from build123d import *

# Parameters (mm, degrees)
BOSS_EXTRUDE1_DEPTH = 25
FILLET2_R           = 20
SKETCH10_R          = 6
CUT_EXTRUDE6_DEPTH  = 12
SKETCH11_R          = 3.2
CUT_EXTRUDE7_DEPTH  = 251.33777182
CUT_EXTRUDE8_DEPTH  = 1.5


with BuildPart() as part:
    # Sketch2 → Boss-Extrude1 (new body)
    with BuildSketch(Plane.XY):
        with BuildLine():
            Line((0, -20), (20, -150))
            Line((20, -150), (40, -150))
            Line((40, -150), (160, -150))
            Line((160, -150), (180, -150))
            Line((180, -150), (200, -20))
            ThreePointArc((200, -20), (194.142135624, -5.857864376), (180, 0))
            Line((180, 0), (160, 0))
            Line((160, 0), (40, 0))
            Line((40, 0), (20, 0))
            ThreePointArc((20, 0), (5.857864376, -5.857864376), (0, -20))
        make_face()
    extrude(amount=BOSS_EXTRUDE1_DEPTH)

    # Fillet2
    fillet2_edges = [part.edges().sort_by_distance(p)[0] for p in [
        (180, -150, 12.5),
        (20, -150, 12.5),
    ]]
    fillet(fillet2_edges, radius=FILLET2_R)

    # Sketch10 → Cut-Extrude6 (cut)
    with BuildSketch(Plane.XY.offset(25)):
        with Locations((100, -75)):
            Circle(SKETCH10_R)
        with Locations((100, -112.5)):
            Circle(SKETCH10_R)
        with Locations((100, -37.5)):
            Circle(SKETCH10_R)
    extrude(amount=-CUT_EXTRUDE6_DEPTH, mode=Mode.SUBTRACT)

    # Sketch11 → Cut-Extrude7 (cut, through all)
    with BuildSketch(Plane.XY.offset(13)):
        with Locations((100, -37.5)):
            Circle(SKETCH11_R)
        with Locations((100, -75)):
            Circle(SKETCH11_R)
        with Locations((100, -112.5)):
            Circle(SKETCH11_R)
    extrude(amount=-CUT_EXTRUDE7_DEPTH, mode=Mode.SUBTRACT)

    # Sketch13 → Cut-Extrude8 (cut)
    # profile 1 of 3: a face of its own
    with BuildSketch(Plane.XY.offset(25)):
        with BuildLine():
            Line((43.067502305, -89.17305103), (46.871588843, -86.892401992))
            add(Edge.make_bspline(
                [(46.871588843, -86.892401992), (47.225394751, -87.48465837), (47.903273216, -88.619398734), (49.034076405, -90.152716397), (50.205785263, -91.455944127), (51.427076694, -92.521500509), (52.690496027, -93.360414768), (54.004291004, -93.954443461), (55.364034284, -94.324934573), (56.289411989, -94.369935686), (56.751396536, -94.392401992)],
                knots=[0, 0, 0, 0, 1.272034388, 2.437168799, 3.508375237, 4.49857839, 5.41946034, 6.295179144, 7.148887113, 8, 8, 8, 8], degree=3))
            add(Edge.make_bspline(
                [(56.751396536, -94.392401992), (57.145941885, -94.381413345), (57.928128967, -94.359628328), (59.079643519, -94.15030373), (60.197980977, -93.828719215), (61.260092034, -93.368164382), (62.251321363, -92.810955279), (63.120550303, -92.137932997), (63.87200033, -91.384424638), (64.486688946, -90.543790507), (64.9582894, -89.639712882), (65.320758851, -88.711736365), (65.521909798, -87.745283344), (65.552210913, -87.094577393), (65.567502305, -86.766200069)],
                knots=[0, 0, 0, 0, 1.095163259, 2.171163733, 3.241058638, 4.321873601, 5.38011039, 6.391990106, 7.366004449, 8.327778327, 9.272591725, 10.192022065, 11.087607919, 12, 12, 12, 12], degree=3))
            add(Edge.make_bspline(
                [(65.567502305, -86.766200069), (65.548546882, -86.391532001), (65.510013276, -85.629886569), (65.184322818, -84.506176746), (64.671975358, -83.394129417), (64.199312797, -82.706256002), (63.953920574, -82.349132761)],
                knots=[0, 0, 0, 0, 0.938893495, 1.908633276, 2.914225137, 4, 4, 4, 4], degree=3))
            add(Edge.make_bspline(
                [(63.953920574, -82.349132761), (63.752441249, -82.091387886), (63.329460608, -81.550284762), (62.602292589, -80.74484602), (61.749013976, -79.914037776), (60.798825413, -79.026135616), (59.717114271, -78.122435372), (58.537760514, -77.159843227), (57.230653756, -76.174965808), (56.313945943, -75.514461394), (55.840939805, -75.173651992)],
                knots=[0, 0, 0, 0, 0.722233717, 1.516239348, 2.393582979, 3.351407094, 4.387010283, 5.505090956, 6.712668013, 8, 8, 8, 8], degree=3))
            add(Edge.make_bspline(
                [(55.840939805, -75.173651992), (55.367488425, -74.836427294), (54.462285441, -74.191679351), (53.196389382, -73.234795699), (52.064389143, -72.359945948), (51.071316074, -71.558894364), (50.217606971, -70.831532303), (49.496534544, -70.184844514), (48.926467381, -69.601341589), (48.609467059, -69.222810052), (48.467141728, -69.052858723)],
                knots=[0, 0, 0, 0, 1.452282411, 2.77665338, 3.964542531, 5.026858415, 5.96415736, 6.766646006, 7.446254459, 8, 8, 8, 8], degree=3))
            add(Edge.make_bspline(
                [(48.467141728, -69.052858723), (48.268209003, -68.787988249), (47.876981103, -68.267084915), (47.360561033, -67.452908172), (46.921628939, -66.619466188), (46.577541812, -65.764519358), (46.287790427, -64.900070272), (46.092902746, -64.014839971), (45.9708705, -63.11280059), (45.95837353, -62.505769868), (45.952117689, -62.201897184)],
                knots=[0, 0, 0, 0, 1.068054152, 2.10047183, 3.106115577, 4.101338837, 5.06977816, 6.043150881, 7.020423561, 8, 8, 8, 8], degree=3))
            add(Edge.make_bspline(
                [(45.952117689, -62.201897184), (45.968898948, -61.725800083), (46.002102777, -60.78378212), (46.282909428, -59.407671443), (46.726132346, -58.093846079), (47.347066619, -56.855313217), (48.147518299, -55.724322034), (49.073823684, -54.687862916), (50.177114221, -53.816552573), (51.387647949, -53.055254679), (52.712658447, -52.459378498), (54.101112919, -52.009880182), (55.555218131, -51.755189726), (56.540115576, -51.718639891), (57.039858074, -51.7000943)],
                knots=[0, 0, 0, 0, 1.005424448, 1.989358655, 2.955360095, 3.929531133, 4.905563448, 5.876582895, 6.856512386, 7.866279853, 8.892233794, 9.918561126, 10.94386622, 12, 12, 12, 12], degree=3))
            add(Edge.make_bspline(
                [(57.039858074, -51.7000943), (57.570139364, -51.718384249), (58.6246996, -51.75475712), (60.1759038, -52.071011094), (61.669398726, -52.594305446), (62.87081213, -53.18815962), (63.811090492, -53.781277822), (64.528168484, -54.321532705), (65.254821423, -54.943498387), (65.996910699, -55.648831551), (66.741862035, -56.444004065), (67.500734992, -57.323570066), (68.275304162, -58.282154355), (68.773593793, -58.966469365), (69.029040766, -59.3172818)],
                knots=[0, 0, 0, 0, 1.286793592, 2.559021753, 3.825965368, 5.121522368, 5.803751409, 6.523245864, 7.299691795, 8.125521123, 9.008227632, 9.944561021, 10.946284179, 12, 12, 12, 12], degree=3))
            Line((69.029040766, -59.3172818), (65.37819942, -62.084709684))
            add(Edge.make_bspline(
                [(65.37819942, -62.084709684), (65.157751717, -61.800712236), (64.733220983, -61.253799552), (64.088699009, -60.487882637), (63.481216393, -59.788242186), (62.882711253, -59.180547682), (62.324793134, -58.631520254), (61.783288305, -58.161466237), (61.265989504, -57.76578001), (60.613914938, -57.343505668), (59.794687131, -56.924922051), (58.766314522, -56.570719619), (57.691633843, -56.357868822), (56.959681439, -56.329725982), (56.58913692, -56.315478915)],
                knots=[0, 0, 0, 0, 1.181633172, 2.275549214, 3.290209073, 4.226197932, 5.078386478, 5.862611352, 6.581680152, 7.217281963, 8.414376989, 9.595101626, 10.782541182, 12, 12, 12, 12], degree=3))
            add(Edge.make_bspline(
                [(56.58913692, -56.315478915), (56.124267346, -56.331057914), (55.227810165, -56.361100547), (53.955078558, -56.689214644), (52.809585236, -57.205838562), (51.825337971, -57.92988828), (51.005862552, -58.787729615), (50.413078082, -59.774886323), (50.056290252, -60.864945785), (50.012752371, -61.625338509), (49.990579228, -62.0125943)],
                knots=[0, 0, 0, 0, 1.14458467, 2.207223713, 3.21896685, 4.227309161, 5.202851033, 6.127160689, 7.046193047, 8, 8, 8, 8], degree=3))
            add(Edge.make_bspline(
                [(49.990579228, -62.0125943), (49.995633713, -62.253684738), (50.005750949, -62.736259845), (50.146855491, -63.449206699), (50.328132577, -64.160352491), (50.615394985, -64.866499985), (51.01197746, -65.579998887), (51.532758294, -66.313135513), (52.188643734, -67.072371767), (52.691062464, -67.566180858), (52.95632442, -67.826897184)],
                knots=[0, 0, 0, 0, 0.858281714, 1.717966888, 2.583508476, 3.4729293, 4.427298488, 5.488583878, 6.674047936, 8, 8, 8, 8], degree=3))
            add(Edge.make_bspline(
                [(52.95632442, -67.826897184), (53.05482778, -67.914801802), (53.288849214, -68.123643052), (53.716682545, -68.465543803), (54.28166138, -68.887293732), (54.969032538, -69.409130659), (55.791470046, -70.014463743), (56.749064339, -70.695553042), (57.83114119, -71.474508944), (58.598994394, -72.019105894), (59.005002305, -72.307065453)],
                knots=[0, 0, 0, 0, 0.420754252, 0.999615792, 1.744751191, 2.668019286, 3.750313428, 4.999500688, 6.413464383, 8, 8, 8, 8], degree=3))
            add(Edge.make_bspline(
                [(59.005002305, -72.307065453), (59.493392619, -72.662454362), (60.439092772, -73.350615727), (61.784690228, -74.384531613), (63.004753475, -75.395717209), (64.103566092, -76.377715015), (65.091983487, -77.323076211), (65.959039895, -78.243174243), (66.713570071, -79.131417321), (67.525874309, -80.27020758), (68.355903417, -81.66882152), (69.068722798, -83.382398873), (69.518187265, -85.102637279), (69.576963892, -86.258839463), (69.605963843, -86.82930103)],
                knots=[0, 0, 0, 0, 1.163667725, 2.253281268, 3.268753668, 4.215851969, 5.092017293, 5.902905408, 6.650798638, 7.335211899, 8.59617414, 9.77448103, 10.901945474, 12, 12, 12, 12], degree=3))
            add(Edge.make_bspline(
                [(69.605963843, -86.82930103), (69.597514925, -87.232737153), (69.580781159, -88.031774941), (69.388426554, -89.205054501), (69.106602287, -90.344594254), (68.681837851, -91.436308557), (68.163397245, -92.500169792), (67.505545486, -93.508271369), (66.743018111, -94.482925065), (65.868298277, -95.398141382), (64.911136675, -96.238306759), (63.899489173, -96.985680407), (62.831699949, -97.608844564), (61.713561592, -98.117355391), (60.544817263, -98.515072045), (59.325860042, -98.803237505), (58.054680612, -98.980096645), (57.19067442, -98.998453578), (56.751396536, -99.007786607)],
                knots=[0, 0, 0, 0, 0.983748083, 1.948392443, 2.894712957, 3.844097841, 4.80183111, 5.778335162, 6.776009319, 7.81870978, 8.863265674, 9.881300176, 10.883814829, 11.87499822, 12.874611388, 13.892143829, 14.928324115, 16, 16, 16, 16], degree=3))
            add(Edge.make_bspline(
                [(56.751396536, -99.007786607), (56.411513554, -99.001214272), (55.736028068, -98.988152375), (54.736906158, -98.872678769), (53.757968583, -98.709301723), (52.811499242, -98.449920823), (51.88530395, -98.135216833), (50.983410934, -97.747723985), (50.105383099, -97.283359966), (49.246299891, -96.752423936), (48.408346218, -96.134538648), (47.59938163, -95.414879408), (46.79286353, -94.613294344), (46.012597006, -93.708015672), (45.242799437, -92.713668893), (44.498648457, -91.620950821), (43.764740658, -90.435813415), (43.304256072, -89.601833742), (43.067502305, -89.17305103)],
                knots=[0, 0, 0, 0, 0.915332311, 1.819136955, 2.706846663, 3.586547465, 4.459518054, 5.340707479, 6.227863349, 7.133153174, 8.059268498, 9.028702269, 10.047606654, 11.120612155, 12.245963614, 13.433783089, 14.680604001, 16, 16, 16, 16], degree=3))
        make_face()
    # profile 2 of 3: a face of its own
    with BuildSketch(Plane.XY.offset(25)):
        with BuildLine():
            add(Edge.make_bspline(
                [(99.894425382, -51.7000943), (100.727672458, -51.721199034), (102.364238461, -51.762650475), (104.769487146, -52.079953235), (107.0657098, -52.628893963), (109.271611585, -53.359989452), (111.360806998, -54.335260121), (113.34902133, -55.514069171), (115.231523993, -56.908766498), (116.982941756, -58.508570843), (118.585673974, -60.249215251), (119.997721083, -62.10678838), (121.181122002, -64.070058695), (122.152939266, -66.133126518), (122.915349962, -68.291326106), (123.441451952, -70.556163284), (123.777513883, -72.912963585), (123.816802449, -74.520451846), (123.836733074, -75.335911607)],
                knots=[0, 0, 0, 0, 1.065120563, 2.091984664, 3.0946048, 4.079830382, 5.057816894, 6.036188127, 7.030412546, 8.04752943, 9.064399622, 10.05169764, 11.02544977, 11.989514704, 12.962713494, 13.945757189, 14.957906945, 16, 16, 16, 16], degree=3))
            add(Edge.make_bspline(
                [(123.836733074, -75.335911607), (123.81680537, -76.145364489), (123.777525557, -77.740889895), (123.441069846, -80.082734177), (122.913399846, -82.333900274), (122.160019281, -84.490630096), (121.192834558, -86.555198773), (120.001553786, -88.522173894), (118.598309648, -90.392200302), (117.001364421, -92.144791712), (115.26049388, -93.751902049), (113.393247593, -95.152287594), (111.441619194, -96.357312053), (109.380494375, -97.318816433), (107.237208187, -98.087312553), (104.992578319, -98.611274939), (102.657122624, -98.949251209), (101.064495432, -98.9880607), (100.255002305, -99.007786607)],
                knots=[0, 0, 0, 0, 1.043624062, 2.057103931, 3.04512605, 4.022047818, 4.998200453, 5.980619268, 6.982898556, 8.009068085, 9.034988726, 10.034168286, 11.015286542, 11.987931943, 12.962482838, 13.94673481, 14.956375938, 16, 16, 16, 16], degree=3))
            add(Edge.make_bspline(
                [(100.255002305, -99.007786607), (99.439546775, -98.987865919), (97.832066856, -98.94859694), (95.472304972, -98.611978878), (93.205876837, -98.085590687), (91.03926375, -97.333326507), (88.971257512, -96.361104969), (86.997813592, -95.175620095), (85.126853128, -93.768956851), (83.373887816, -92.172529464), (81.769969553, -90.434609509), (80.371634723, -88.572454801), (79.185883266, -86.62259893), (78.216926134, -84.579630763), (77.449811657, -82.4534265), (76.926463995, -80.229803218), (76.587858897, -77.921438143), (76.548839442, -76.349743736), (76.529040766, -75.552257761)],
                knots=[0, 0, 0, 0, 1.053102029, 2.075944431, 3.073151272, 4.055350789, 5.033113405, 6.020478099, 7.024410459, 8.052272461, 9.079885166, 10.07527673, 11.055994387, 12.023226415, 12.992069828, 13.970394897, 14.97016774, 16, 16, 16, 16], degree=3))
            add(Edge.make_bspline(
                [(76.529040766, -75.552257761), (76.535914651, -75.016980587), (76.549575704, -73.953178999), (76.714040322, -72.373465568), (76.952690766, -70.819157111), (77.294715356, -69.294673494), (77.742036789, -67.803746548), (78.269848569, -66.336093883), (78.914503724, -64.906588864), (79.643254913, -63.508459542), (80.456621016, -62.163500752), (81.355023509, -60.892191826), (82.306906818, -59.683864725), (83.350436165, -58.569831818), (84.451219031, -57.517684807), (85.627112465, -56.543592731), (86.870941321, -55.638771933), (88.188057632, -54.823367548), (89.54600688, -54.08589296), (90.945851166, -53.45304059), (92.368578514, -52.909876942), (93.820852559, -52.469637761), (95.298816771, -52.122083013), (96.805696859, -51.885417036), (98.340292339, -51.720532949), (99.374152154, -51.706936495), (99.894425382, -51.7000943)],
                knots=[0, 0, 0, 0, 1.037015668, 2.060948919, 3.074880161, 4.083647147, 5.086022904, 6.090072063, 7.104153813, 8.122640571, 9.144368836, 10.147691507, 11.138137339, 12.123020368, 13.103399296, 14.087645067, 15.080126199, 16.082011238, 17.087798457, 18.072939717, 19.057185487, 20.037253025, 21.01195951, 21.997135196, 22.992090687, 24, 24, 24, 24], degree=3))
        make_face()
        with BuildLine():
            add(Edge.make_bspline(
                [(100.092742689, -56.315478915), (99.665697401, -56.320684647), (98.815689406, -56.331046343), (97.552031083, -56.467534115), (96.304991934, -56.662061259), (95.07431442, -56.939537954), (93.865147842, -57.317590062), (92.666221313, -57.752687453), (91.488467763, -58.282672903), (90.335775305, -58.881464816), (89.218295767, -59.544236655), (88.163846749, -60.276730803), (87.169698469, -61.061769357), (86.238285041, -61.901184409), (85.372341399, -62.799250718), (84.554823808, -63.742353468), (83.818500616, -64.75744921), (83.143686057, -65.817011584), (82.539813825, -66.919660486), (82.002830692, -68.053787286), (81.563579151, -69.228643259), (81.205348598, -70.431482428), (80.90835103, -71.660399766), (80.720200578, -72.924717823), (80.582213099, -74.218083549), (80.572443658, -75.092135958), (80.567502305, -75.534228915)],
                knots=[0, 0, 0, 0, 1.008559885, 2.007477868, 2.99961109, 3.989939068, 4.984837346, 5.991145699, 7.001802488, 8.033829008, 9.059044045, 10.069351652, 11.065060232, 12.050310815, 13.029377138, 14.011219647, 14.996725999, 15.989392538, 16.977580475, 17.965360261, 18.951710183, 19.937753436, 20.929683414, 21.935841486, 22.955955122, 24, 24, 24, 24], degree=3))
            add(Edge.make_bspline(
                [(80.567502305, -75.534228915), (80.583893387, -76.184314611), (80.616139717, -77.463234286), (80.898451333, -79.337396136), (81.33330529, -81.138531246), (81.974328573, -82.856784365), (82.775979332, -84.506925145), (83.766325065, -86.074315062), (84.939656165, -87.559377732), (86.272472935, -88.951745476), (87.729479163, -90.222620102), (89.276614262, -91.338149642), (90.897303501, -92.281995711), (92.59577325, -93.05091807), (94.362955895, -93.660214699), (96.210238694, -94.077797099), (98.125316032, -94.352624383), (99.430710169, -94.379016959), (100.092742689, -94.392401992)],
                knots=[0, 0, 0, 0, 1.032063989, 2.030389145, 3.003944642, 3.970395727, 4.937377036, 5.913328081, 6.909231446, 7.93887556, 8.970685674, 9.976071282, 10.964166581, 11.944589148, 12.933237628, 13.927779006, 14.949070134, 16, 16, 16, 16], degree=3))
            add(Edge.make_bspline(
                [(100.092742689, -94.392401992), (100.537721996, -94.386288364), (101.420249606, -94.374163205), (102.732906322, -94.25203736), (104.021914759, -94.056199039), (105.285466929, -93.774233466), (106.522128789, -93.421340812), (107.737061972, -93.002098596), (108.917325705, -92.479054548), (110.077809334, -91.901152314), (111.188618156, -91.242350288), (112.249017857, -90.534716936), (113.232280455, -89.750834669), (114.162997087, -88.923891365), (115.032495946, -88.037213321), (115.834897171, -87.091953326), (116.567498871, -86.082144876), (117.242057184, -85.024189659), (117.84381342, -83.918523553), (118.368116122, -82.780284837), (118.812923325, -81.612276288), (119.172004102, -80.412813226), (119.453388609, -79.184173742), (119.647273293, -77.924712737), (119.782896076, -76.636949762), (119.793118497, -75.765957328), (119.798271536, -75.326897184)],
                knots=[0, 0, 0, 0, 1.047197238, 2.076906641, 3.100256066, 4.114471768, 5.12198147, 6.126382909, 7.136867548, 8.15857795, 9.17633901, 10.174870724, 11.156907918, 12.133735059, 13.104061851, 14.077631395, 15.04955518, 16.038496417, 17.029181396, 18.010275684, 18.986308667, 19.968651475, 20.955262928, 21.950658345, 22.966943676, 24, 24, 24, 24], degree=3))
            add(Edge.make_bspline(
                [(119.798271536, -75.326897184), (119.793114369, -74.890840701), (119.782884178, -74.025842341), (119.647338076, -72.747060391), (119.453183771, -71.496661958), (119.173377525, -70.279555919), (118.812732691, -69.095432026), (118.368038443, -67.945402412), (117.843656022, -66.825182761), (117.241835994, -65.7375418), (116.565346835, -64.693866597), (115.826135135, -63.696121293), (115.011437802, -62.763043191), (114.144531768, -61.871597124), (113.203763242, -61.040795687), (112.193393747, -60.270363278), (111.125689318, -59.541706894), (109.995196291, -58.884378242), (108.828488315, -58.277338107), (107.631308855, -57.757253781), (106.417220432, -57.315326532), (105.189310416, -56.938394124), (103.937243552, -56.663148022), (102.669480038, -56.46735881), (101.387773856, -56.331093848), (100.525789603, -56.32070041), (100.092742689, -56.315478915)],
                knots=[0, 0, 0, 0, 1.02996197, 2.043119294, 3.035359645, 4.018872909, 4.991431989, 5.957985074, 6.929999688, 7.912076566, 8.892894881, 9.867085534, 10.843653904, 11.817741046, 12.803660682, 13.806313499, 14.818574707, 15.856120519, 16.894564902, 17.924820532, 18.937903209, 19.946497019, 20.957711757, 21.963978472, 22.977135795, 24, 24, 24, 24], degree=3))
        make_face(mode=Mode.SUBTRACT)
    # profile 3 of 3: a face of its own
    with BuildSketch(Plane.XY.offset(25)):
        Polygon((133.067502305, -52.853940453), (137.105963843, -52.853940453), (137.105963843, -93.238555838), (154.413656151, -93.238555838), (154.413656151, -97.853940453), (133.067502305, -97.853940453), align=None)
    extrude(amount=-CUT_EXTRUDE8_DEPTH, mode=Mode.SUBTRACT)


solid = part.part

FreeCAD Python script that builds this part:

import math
import FreeCAD as App
import Part
import Sketcher


def edges_at(feature, points):
    """Names of the edges that pass closest to the given points."""
    edges = feature.Shape.Edges
    near = lambda p: min(range(len(edges)), key=lambda i: edges[i].distToShape(Part.Vertex(*p))[0])
    return sorted({f"Edge{near(p) + 1}" for p in points})


def add_polygon(sketch, points):
    """Adds a closed chain of lines whose ends are joined by coincident constraints."""
    first, n = sketch.GeometryCount, len(points)
    for a, b in zip(points, points[1:] + points[:1]):
        sketch.addGeometry(Part.LineSegment(App.Vector(*a, 0), App.Vector(*b, 0)), False)
    for i in range(n):
        sketch.addConstraint(Sketcher.Constraint("Coincident", first + i, 2, first + (i + 1) % n, 1))

doc = App.newDocument("Part")
body = doc.addObject("PartDesign::Body", "Body")

# Sketch on XY plane
sketch1 = body.newObject("Sketcher::SketchObject", "Sketch")
sketch1.AttachmentSupport = (doc.getObject("XY_Plane"), [""])
sketch1.MapMode = "FlatFace"
sketch1.addGeometry([
    Part.LineSegment(App.Vector(0, -20, 0), App.Vector(20, -150, 0)),  # 0
    Part.LineSegment(App.Vector(20, -150, 0), App.Vector(180, -150, 0)),  # 1
    Part.LineSegment(App.Vector(180, -150, 0), App.Vector(200, -20, 0)),  # 2
    Part.ArcOfCircle(Part.Circle(App.Vector(180, -20, 0), App.Vector(0, 0, 1), 20), math.radians(0), math.radians(90)),  # 3
    Part.LineSegment(App.Vector(180, 0, 0), App.Vector(20, 0, 0)),  # 4
    Part.ArcOfCircle(Part.Circle(App.Vector(20, -20, 0), App.Vector(0, 0, 1), 20), math.radians(90), math.radians(180)),  # 5
], False)
sketch1.addConstraint([
    Sketcher.Constraint("Coincident", 0, 2, 1, 1),
    Sketcher.Constraint("Coincident", 1, 2, 2, 1),
    Sketcher.Constraint("Coincident", 2, 2, 3, 1),
    Sketcher.Constraint("Tangent", 3, 2, 4, 1),
    Sketcher.Constraint("Tangent", 4, 2, 5, 1),
    Sketcher.Constraint("Coincident", 5, 2, 0, 1),
    Sketcher.Constraint("Horizontal", 1),
    Sketcher.Constraint("Horizontal", 4),
    Sketcher.Constraint("Equal", 3, 5),
    Sketcher.Constraint("PointOnObject", 3, 2, -1),
    Sketcher.Constraint("PointOnObject", 5, 2, -2),
    Sketcher.Constraint("Horizontal", 5, 3, 2, 2),
    Sketcher.Constraint("Horizontal", 2, 2, 5, 2),
    Sketcher.Constraint("Vertical", 5, 3, 0, 2),
    Sketcher.Constraint("Vertical", 3, 3, 1, 2),
    Sketcher.Constraint("Radius", 3, 20.0),
    Sketcher.Constraint("DistanceX", 1, 1, 1, 2, 160.0),
    Sketcher.Constraint("DistanceY", 0, 2, -1, 1, 150.0),
])
pad1 = body.newObject("PartDesign::Pad", "Pad")
pad1.Profile = sketch1
pad1.Length = 25
doc.recompute()

fillet = body.newObject("PartDesign::Fillet", "Fillet")
fillet.Base = (pad1, edges_at(pad1, [(180, -150, 12.5), (20, -150, 12.5)]))
fillet.Radius = 20

# Sketch on XY plane
sketch2 = body.newObject("Sketcher::SketchObject", "Sketch001")
sketch2.AttachmentSupport = (doc.getObject("XY_Plane"), [""])
sketch2.MapMode = "FlatFace"
sketch2.AttachmentOffset = App.Placement(App.Vector(0, 0, 25), App.Rotation())
sketch2.addGeometry([
    Part.Circle(App.Vector(100, -75, 0), App.Vector(0, 0, 1), 6),
    Part.Circle(App.Vector(100, -112.5, 0), App.Vector(0, 0, 1), 6),
    Part.Circle(App.Vector(100, -37.5, 0), App.Vector(0, 0, 1), 6),
], False)
sketch2.addConstraint([
    Sketcher.Constraint("Equal", 0, 1),
    Sketcher.Constraint("Equal", 1, 2),
    Sketcher.Constraint("Vertical", 0, 3, 1, 3),
    Sketcher.Constraint("Vertical", 1, 3, 2, 3),
    Sketcher.Constraint("Diameter", 0, 12.0),
    Sketcher.Constraint("DistanceX", -1, 1, 0, 3, 100.0),
    Sketcher.Constraint("DistanceY", 0, 3, -1, 1, 75.0),
    Sketcher.Constraint("DistanceY", 1, 3, 2, 3, 75.0),
    Sketcher.Constraint("DistanceY", 1, 3, -1, 1, 112.5),
])
pocket1 = body.newObject("PartDesign::Pocket", "Pocket")
pocket1.Profile = sketch2
pocket1.Length = 12

# Sketch on XY plane
sketch3 = body.newObject("Sketcher::SketchObject", "Sketch002")
sketch3.AttachmentSupport = (doc.getObject("XY_Plane"), [""])
sketch3.MapMode = "FlatFace"
sketch3.AttachmentOffset = App.Placement(App.Vector(0, 0, 13), App.Rotation())
sketch3.addGeometry([
    Part.Circle(App.Vector(100, -37.5, 0), App.Vector(0, 0, 1), 3.2),
    Part.Circle(App.Vector(100, -75, 0), App.Vector(0, 0, 1), 3.2),
    Part.Circle(App.Vector(100, -112.5, 0), App.Vector(0, 0, 1), 3.2),
], False)
sketch3.addConstraint([
    Sketcher.Constraint("Equal", 0, 1),
    Sketcher.Constraint("Equal", 1, 2),
    Sketcher.Constraint("Vertical", 0, 3, 1, 3),
    Sketcher.Constraint("Vertical", 1, 3, 2, 3),
    Sketcher.Constraint("Diameter", 0, 6.4),
    Sketcher.Constraint("DistanceX", -1, 1, 0, 3, 100.0),
    Sketcher.Constraint("DistanceY", 1, 3, -1, 1, 75.0),
    Sketcher.Constraint("DistanceY", 2, 3, 0, 3, 75.0),
    Sketcher.Constraint("DistanceY", 0, 3, -1, 1, 37.5),
])
pocket2 = body.newObject("PartDesign::Pocket", "Pocket001")
pocket2.Profile = sketch3
pocket2.Type = "ThroughAll"

# Sketch on XY plane
sketch4 = body.newObject("Sketcher::SketchObject", "Sketch003")
sketch4.AttachmentSupport = (doc.getObject("XY_Plane"), [""])
sketch4.MapMode = "FlatFace"
sketch4.AttachmentOffset = App.Placement(App.Vector(0, 0, 25), App.Rotation())
sketch4.addGeometry(Part.LineSegment(App.Vector(46.871589, -86.892402, 0), App.Vector(43.067502, -89.173051, 0)), False)  # 0
sketch4.addGeometry(Part.BSplineCurve([App.Vector(56.751397, -99.007787, 0), App.Vector(56.411514, -99.001214, 0), App.Vector(55.736028, -98.988152, 0), App.Vector(54.736906, -98.872679, 0), App.Vector(53.757969, -98.709302, 0), App.Vector(52.811499, -98.449921, 0), App.Vector(51.885304, -98.135217, 0), App.Vector(50.983411, -97.747724, 0), App.Vector(50.105383, -97.28336, 0), App.Vector(49.2463, -96.752424, 0), App.Vector(48.408346, -96.134539, 0), App.Vector(47.599382, -95.414879, 0), App.Vector(46.792864, -94.613294, 0), App.Vector(46.012597, -93.708016, 0), App.Vector(45.242799, -92.713669, 0), App.Vector(44.498648, -91.620951, 0), App.Vector(43.764741, -90.435813, 0), App.Vector(43.304256, -89.601834, 0), App.Vector(43.067502, -89.173051, 0)], [4, 1, 1, 1, 1, 1, 1, 1, 1, 1, 1, 1, 1, 1, 1, 1, 4], [0, 0.915332311, 1.819136955, 2.706846663, 3.586547465, 4.459518054, 5.340707479, 6.227863349, 7.133153174, 8.059268498, 9.028702269, 10.047606654, 11.120612155, 12.245963614, 13.433783089, 14.680604001, 16], False, 3, [1, 1, 1, 1, 1, 1, 1, 1, 1, 1, 1, 1, 1, 1, 1, 1, 1, 1, 1], False), False)  # 1
sketch4.addGeometry(Part.BSplineCurve([App.Vector(69.605964, -86.829301, 0), App.Vector(69.597515, -87.232737, 0), App.Vector(69.580781, -88.031775, 0), App.Vector(69.388427, -89.205055, 0), App.Vector(69.106602, -90.344594, 0), App.Vector(68.681838, -91.436309, 0), App.Vector(68.163397, -92.50017, 0), App.Vector(67.505545, -93.508271, 0), App.Vector(66.743018, -94.482925, 0), App.Vector(65.868298, -95.398141, 0), App.Vector(64.911137, -96.238307, 0), App.Vector(63.899489, -96.98568, 0), App.Vector(62.8317, -97.608845, 0), App.Vector(61.713562, -98.117355, 0), App.Vector(60.544817, -98.515072, 0), App.Vector(59.32586, -98.803238, 0), App.Vector(58.054681, -98.980097, 0), App.Vector(57.190674, -98.998454, 0), App.Vector(56.751397, -99.007787, 0)], [4, 1, 1, 1, 1, 1, 1, 1, 1, 1, 1, 1, 1, 1, 1, 1, 4], [0, 0.983748083, 1.948392443, 2.894712957, 3.844097841, 4.80183111, 5.778335162, 6.776009319, 7.81870978, 8.863265674, 9.881300176, 10.883814829, 11.87499822, 12.874611388, 13.892143829, 14.928324115, 16], False, 3, [1, 1, 1, 1, 1, 1, 1, 1, 1, 1, 1, 1, 1, 1, 1, 1, 1, 1, 1], False), False)  # 2
sketch4.addGeometry(Part.BSplineCurve([App.Vector(59.005002, -72.307065, 0), App.Vector(59.493393, -72.662454, 0), App.Vector(60.439093, -73.350616, 0), App.Vector(61.78469, -74.384532, 0), App.Vector(63.004753, -75.395717, 0), App.Vector(64.103566, -76.377715, 0), App.Vector(65.091983, -77.323076, 0), App.Vector(65.95904, -78.243174, 0), App.Vector(66.71357, -79.131417, 0), App.Vector(67.525874, -80.270208, 0), App.Vector(68.355903, -81.668822, 0), App.Vector(69.068723, -83.382399, 0), App.Vector(69.518187, -85.102637, 0), App.Vector(69.576964, -86.258839, 0), App.Vector(69.605964, -86.829301, 0)], [4, 1, 1, 1, 1, 1, 1, 1, 1, 1, 1, 1, 4], [0, 1.163667725, 2.253281268, 3.268753668, 4.215851969, 5.092017293, 5.902905408, 6.650798638, 7.335211899, 8.59617414, 9.77448103, 10.901945474, 12], False, 3, [1, 1, 1, 1, 1, 1, 1, 1, 1, 1, 1, 1, 1, 1, 1], False), False)  # 3
sketch4.addGeometry(Part.BSplineCurve([App.Vector(52.956324, -67.826897, 0), App.Vector(53.054828, -67.914802, 0), App.Vector(53.288849, -68.123643, 0), App.Vector(53.716683, -68.465544, 0), App.Vector(54.281661, -68.887294, 0), App.Vector(54.969033, -69.409131, 0), App.Vector(55.79147, -70.014464, 0), App.Vector(56.749064, -70.695553, 0), App.Vector(57.831141, -71.474509, 0), App.Vector(58.598994, -72.019106, 0), App.Vector(59.005002, -72.307065, 0)], [4, 1, 1, 1, 1, 1, 1, 1, 4], [0, 0.420754252, 0.999615792, 1.744751191, 2.668019286, 3.750313428, 4.999500688, 6.413464383, 8], False, 3, [1, 1, 1, 1, 1, 1, 1, 1, 1, 1, 1], False), False)  # 4
sketch4.addGeometry(Part.BSplineCurve([App.Vector(49.990579, -62.012594, 0), App.Vector(49.995634, -62.253685, 0), App.Vector(50.005751, -62.73626, 0), App.Vector(50.146855, -63.449207, 0), App.Vector(50.328133, -64.160352, 0), App.Vector(50.615395, -64.8665, 0), App.Vector(51.011977, -65.579999, 0), App.Vector(51.532758, -66.313136, 0), App.Vector(52.188644, -67.072372, 0), App.Vector(52.691062, -67.566181, 0), App.Vector(52.956324, -67.826897, 0)], [4, 1, 1, 1, 1, 1, 1, 1, 4], [0, 0.858281714, 1.717966888, 2.583508476, 3.4729293, 4.427298488, 5.488583878, 6.674047936, 8], False, 3, [1, 1, 1, 1, 1, 1, 1, 1, 1, 1, 1], False), False)  # 5
sketch4.addGeometry(Part.BSplineCurve([App.Vector(56.589137, -56.315479, 0), App.Vector(56.124267, -56.331058, 0), App.Vector(55.22781, -56.361101, 0), App.Vector(53.955079, -56.689215, 0), App.Vector(52.809585, -57.205839, 0), App.Vector(51.825338, -57.929888, 0), App.Vector(51.005863, -58.78773, 0), App.Vector(50.413078, -59.774886, 0), App.Vector(50.05629, -60.864946, 0), App.Vector(50.012752, -61.625339, 0), App.Vector(49.990579, -62.012594, 0)], [4, 1, 1, 1, 1, 1, 1, 1, 4], [0, 1.14458467, 2.207223713, 3.21896685, 4.227309161, 5.202851033, 6.127160689, 7.046193047, 8], False, 3, [1, 1, 1, 1, 1, 1, 1, 1, 1, 1, 1], False), False)  # 6
sketch4.addGeometry(Part.BSplineCurve([App.Vector(65.378199, -62.08471, 0), App.Vector(65.157752, -61.800712, 0), App.Vector(64.733221, -61.2538, 0), App.Vector(64.088699, -60.487883, 0), App.Vector(63.481216, -59.788242, 0), App.Vector(62.882711, -59.180548, 0), App.Vector(62.324793, -58.63152, 0), App.Vector(61.783288, -58.161466, 0), App.Vector(61.26599, -57.76578, 0), App.Vector(60.613915, -57.343506, 0), App.Vector(59.794687, -56.924922, 0), App.Vector(58.766315, -56.57072, 0), App.Vector(57.691634, -56.357869, 0), App.Vector(56.959681, -56.329726, 0), App.Vector(56.589137, -56.315479, 0)], [4, 1, 1, 1, 1, 1, 1, 1, 1, 1, 1, 1, 4], [0, 1.181633172, 2.275549214, 3.290209073, 4.226197932, 5.078386478, 5.862611352, 6.581680152, 7.217281963, 8.414376989, 9.595101626, 10.782541182, 12], False, 3, [1, 1, 1, 1, 1, 1, 1, 1, 1, 1, 1, 1, 1, 1, 1], False), False)  # 7
sketch4.addGeometry(Part.LineSegment(App.Vector(65.378199, -62.08471, 0), App.Vector(69.029041, -59.317282, 0)), False)  # 8
sketch4.addGeometry(Part.BSplineCurve([App.Vector(57.039858, -51.700094, 0), App.Vector(57.570139, -51.718384, 0), App.Vector(58.6247, -51.754757, 0), App.Vector(60.175904, -52.071011, 0), App.Vector(61.669399, -52.594305, 0), App.Vector(62.870812, -53.18816, 0), App.Vector(63.81109, -53.781278, 0), App.Vector(64.528168, -54.321533, 0), App.Vector(65.254821, -54.943498, 0), App.Vector(65.996911, -55.648832, 0), App.Vector(66.741862, -56.444004, 0), App.Vector(67.500735, -57.32357, 0), App.Vector(68.275304, -58.282154, 0), App.Vector(68.773594, -58.966469, 0), App.Vector(69.029041, -59.317282, 0)], [4, 1, 1, 1, 1, 1, 1, 1, 1, 1, 1, 1, 4], [0, 1.286793592, 2.559021753, 3.825965368, 5.121522368, 5.803751409, 6.523245864, 7.299691795, 8.125521123, 9.008227632, 9.944561021, 10.946284179, 12], False, 3, [1, 1, 1, 1, 1, 1, 1, 1, 1, 1, 1, 1, 1, 1, 1], False), False)  # 9
sketch4.addGeometry(Part.BSplineCurve([App.Vector(45.952118, -62.201897, 0), App.Vector(45.968899, -61.7258, 0), App.Vector(46.002103, -60.783782, 0), App.Vector(46.282909, -59.407671, 0), App.Vector(46.726132, -58.093846, 0), App.Vector(47.347067, -56.855313, 0), App.Vector(48.147518, -55.724322, 0), App.Vector(49.073824, -54.687863, 0), App.Vector(50.177114, -53.816553, 0), App.Vector(51.387648, -53.055255, 0), App.Vector(52.712658, -52.459378, 0), App.Vector(54.101113, -52.00988, 0), App.Vector(55.555218, -51.75519, 0), App.Vector(56.540116, -51.71864, 0), App.Vector(57.039858, -51.700094, 0)], [4, 1, 1, 1, 1, 1, 1, 1, 1, 1, 1, 1, 4], [0, 1.005424448, 1.989358655, 2.955360095, 3.929531133, 4.905563448, 5.876582895, 6.856512386, 7.866279853, 8.892233794, 9.918561126, 10.94386622, 12], False, 3, [1, 1, 1, 1, 1, 1, 1, 1, 1, 1, 1, 1, 1, 1, 1], False), False)  # 10
sketch4.addGeometry(Part.BSplineCurve([App.Vector(48.467142, -69.052859, 0), App.Vector(48.268209, -68.787988, 0), App.Vector(47.876981, -68.267085, 0), App.Vector(47.360561, -67.452908, 0), App.Vector(46.921629, -66.619466, 0), App.Vector(46.577542, -65.764519, 0), App.Vector(46.28779, -64.90007, 0), App.Vector(46.092903, -64.01484, 0), App.Vector(45.97087, -63.112801, 0), App.Vector(45.958374, -62.50577, 0), App.Vector(45.952118, -62.201897, 0)], [4, 1, 1, 1, 1, 1, 1, 1, 4], [0, 1.068054152, 2.10047183, 3.106115577, 4.101338837, 5.06977816, 6.043150881, 7.020423561, 8], False, 3, [1, 1, 1, 1, 1, 1, 1, 1, 1, 1, 1], False), False)  # 11
sketch4.addGeometry(Part.BSplineCurve([App.Vector(55.84094, -75.173652, 0), App.Vector(55.367488, -74.836427, 0), App.Vector(54.462285, -74.191679, 0), App.Vector(53.196389, -73.234796, 0), App.Vector(52.064389, -72.359946, 0), App.Vector(51.071316, -71.558894, 0), App.Vector(50.217607, -70.831532, 0), App.Vector(49.496535, -70.184845, 0), App.Vector(48.926467, -69.601342, 0), App.Vector(48.609467, -69.22281, 0), App.Vector(48.467142, -69.052859, 0)], [4, 1, 1, 1, 1, 1, 1, 1, 4], [0, 1.452282411, 2.77665338, 3.964542531, 5.026858415, 5.96415736, 6.766646006, 7.446254459, 8], False, 3, [1, 1, 1, 1, 1, 1, 1, 1, 1, 1, 1], False), False)  # 12
sketch4.addGeometry(Part.BSplineCurve([App.Vector(63.953921, -82.349133, 0), App.Vector(63.752441, -82.091388, 0), App.Vector(63.329461, -81.550285, 0), App.Vector(62.602293, -80.744846, 0), App.Vector(61.749014, -79.914038, 0), App.Vector(60.798825, -79.026136, 0), App.Vector(59.717114, -78.122435, 0), App.Vector(58.537761, -77.159843, 0), App.Vector(57.230654, -76.174966, 0), App.Vector(56.313946, -75.514461, 0), App.Vector(55.84094, -75.173652, 0)], [4, 1, 1, 1, 1, 1, 1, 1, 4], [0, 0.722233717, 1.516239348, 2.393582979, 3.351407094, 4.387010283, 5.505090956, 6.712668013, 8], False, 3, [1, 1, 1, 1, 1, 1, 1, 1, 1, 1, 1], False), False)  # 13
sketch4.addGeometry(Part.BSplineCurve([App.Vector(65.567502, -86.7662, 0), App.Vector(65.548547, -86.391532, 0), App.Vector(65.510013, -85.629887, 0), App.Vector(65.184323, -84.506177, 0), App.Vector(64.671975, -83.394129, 0), App.Vector(64.199313, -82.706256, 0), App.Vector(63.953921, -82.349133, 0)], [4, 1, 1, 1, 4], [0, 0.938893495, 1.908633276, 2.914225137, 4], False, 3, [1, 1, 1, 1, 1, 1, 1], False), False)  # 14
sketch4.addGeometry(Part.BSplineCurve([App.Vector(56.751397, -94.392402, 0), App.Vector(57.145942, -94.381413, 0), App.Vector(57.928129, -94.359628, 0), App.Vector(59.079644, -94.150304, 0), App.Vector(60.197981, -93.828719, 0), App.Vector(61.260092, -93.368164, 0), App.Vector(62.251321, -92.810955, 0), App.Vector(63.12055, -92.137933, 0), App.Vector(63.872, -91.384425, 0), App.Vector(64.486689, -90.543791, 0), App.Vector(64.958289, -89.639713, 0), App.Vector(65.320759, -88.711736, 0), App.Vector(65.52191, -87.745283, 0), App.Vector(65.552211, -87.094577, 0), App.Vector(65.567502, -86.7662, 0)], [4, 1, 1, 1, 1, 1, 1, 1, 1, 1, 1, 1, 4], [0, 1.095163259, 2.171163733, 3.241058638, 4.321873601, 5.38011039, 6.391990106, 7.366004449, 8.327778327, 9.272591725, 10.192022065, 11.087607919, 12], False, 3, [1, 1, 1, 1, 1, 1, 1, 1, 1, 1, 1, 1, 1, 1, 1], False), False)  # 15
sketch4.addGeometry(Part.BSplineCurve([App.Vector(46.871589, -86.892402, 0), App.Vector(47.225395, -87.484658, 0), App.Vector(47.903273, -88.619399, 0), App.Vector(49.034076, -90.152716, 0), App.Vector(50.205785, -91.455944, 0), App.Vector(51.427077, -92.521501, 0), App.Vector(52.690496, -93.360415, 0), App.Vector(54.004291, -93.954443, 0), App.Vector(55.364034, -94.324935, 0), App.Vector(56.289412, -94.369936, 0), App.Vector(56.751397, -94.392402, 0)], [4, 1, 1, 1, 1, 1, 1, 1, 4], [0, 1.272034388, 2.437168799, 3.508375237, 4.49857839, 5.41946034, 6.295179144, 7.148887113, 8], False, 3, [1, 1, 1, 1, 1, 1, 1, 1, 1, 1, 1], False), False)  # 16
sketch4.addGeometry(Part.BSplineCurve([App.Vector(99.894425, -51.700094, 0), App.Vector(100.727672, -51.721199, 0), App.Vector(102.364238, -51.76265, 0), App.Vector(104.769487, -52.079953, 0), App.Vector(107.06571, -52.628894, 0), App.Vector(109.271612, -53.359989, 0), App.Vector(111.360807, -54.33526, 0), App.Vector(113.349021, -55.514069, 0), App.Vector(115.231524, -56.908766, 0), App.Vector(116.982942, -58.508571, 0), App.Vector(118.585674, -60.249215, 0), App.Vector(119.997721, -62.106788, 0), App.Vector(121.181122, -64.070059, 0), App.Vector(122.152939, -66.133127, 0), App.Vector(122.91535, -68.291326, 0), App.Vector(123.441452, -70.556163, 0), App.Vector(123.777514, -72.912964, 0), App.Vector(123.816802, -74.520452, 0), App.Vector(123.836733, -75.335912, 0)], [4, 1, 1, 1, 1, 1, 1, 1, 1, 1, 1, 1, 1, 1, 1, 1, 4], [0, 1.065120563, 2.091984664, 3.0946048, 4.079830382, 5.057816894, 6.036188127, 7.030412546, 8.04752943, 9.064399622, 10.05169764, 11.02544977, 11.989514704, 12.962713494, 13.945757189, 14.957906945, 16], False, 3, [1, 1, 1, 1, 1, 1, 1, 1, 1, 1, 1, 1, 1, 1, 1, 1, 1, 1, 1], False), False)  # 17
sketch4.addGeometry(Part.BSplineCurve([App.Vector(76.529041, -75.552258, 0), App.Vector(76.535915, -75.016981, 0), App.Vector(76.549576, -73.953179, 0), App.Vector(76.71404, -72.373466, 0), App.Vector(76.952691, -70.819157, 0), App.Vector(77.294715, -69.294673, 0), App.Vector(77.742037, -67.803747, 0), App.Vector(78.269849, -66.336094, 0), App.Vector(78.914504, -64.906589, 0), App.Vector(79.643255, -63.50846, 0), App.Vector(80.456621, -62.163501, 0), App.Vector(81.355024, -60.892192, 0), App.Vector(82.306907, -59.683865, 0), App.Vector(83.350436, -58.569832, 0), App.Vector(84.451219, -57.517685, 0), App.Vector(85.627112, -56.543593, 0), App.Vector(86.870941, -55.638772, 0), App.Vector(88.188058, -54.823368, 0), App.Vector(89.546007, -54.085893, 0), App.Vector(90.945851, -53.453041, 0), App.Vector(92.368579, -52.909877, 0), App.Vector(93.820853, -52.469638, 0), App.Vector(95.298817, -52.122083, 0), App.Vector(96.805697, -51.885417, 0), App.Vector(98.340292, -51.720533, 0), App.Vector(99.374152, -51.706936, 0), App.Vector(99.894425, -51.700094, 0)], [4, 1, 1, 1, 1, 1, 1, 1, 1, 1, 1, 1, 1, 1, 1, 1, 1, 1, 1, 1, 1, 1, 1, 1, 4], [0, 1.037015668, 2.060948919, 3.074880161, 4.083647147, 5.086022904, 6.090072063, 7.104153813, 8.122640571, 9.144368836, 10.147691507, 11.138137339, 12.123020368, 13.103399296, 14.087645067, 15.080126199, 16.082011238, 17.087798457, 18.072939717, 19.057185487, 20.037253025, 21.01195951, 21.997135196, 22.992090687, 24], False, 3, [1, 1, 1, 1, 1, 1, 1, 1, 1, 1, 1, 1, 1, 1, 1, 1, 1, 1, 1, 1, 1, 1, 1, 1, 1, 1, 1], False), False)  # 18
sketch4.addGeometry(Part.BSplineCurve([App.Vector(100.255002, -99.007787, 0), App.Vector(99.439547, -98.987866, 0), App.Vector(97.832067, -98.948597, 0), App.Vector(95.472305, -98.611979, 0), App.Vector(93.205877, -98.085591, 0), App.Vector(91.039264, -97.333327, 0), App.Vector(88.971258, -96.361105, 0), App.Vector(86.997814, -95.17562, 0), App.Vector(85.126853, -93.768957, 0), App.Vector(83.373888, -92.172529, 0), App.Vector(81.76997, -90.43461, 0), App.Vector(80.371635, -88.572455, 0), App.Vector(79.185883, -86.622599, 0), App.Vector(78.216926, -84.579631, 0), App.Vector(77.449812, -82.453427, 0), App.Vector(76.926464, -80.229803, 0), App.Vector(76.587859, -77.921438, 0), App.Vector(76.548839, -76.349744, 0), App.Vector(76.529041, -75.552258, 0)], [4, 1, 1, 1, 1, 1, 1, 1, 1, 1, 1, 1, 1, 1, 1, 1, 4], [0, 1.053102029, 2.075944431, 3.073151272, 4.055350789, 5.033113405, 6.020478099, 7.024410459, 8.052272461, 9.079885166, 10.07527673, 11.055994387, 12.023226415, 12.992069828, 13.970394897, 14.97016774, 16], False, 3, [1, 1, 1, 1, 1, 1, 1, 1, 1, 1, 1, 1, 1, 1, 1, 1, 1, 1, 1], False), False)  # 19
sketch4.addGeometry(Part.BSplineCurve([App.Vector(123.836733, -75.335912, 0), App.Vector(123.816805, -76.145364, 0), App.Vector(123.777526, -77.74089, 0), App.Vector(123.44107, -80.082734, 0), App.Vector(122.9134, -82.3339, 0), App.Vector(122.160019, -84.49063, 0), App.Vector(121.192835, -86.555199, 0), App.Vector(120.001554, -88.522174, 0), App.Vector(118.59831, -90.3922, 0), App.Vector(117.001364, -92.144792, 0), App.Vector(115.260494, -93.751902, 0), App.Vector(113.393248, -95.152288, 0), App.Vector(111.441619, -96.357312, 0), App.Vector(109.380494, -97.318816, 0), App.Vector(107.237208, -98.087313, 0), App.Vector(104.992578, -98.611275, 0), App.Vector(102.657123, -98.949251, 0), App.Vector(101.064495, -98.988061, 0), App.Vector(100.255002, -99.007787, 0)], [4, 1, 1, 1, 1, 1, 1, 1, 1, 1, 1, 1, 1, 1, 1, 1, 4], [0, 1.043624062, 2.057103931, 3.04512605, 4.022047818, 4.998200453, 5.980619268, 6.982898556, 8.009068085, 9.034988726, 10.034168286, 11.015286542, 11.987931943, 12.962482838, 13.94673481, 14.956375938, 16], False, 3, [1, 1, 1, 1, 1, 1, 1, 1, 1, 1, 1, 1, 1, 1, 1, 1, 1, 1, 1], False), False)  # 20
sketch4.addGeometry(Part.BSplineCurve([App.Vector(119.798272, -75.326897, 0), App.Vector(119.793114, -74.890841, 0), App.Vector(119.782884, -74.025842, 0), App.Vector(119.647338, -72.74706, 0), App.Vector(119.453184, -71.496662, 0), App.Vector(119.173378, -70.279556, 0), App.Vector(118.812733, -69.095432, 0), App.Vector(118.368038, -67.945402, 0), App.Vector(117.843656, -66.825183, 0), App.Vector(117.241836, -65.737542, 0), App.Vector(116.565347, -64.693867, 0), App.Vector(115.826135, -63.696121, 0), App.Vector(115.011438, -62.763043, 0), App.Vector(114.144532, -61.871597, 0), App.Vector(113.203763, -61.040796, 0), App.Vector(112.193394, -60.270363, 0), App.Vector(111.125689, -59.541707, 0), App.Vector(109.995196, -58.884378, 0), App.Vector(108.828488, -58.277338, 0), App.Vector(107.631309, -57.757254, 0), App.Vector(106.41722, -57.315327, 0), App.Vector(105.18931, -56.938394, 0), App.Vector(103.937244, -56.663148, 0), App.Vector(102.66948, -56.467359, 0), App.Vector(101.387774, -56.331094, 0), App.Vector(100.52579, -56.3207, 0), App.Vector(100.092743, -56.315479, 0)], [4, 1, 1, 1, 1, 1, 1, 1, 1, 1, 1, 1, 1, 1, 1, 1, 1, 1, 1, 1, 1, 1, 1, 1, 4], [0, 1.02996197, 2.043119294, 3.035359645, 4.018872909, 4.991431989, 5.957985074, 6.929999688, 7.912076566, 8.892894881, 9.867085534, 10.843653904, 11.817741046, 12.803660682, 13.806313499, 14.818574707, 15.856120519, 16.894564902, 17.924820532, 18.937903209, 19.946497019, 20.957711757, 21.963978472, 22.977135795, 24], False, 3, [1, 1, 1, 1, 1, 1, 1, 1, 1, 1, 1, 1, 1, 1, 1, 1, 1, 1, 1, 1, 1, 1, 1, 1, 1, 1, 1], False), False)  # 21
sketch4.addGeometry(Part.BSplineCurve([App.Vector(100.092743, -94.392402, 0), App.Vector(100.537722, -94.386288, 0), App.Vector(101.42025, -94.374163, 0), App.Vector(102.732906, -94.252037, 0), App.Vector(104.021915, -94.056199, 0), App.Vector(105.285467, -93.774233, 0), App.Vector(106.522129, -93.421341, 0), App.Vector(107.737062, -93.002099, 0), App.Vector(108.917326, -92.479055, 0), App.Vector(110.077809, -91.901152, 0), App.Vector(111.188618, -91.24235, 0), App.Vector(112.249018, -90.534717, 0), App.Vector(113.23228, -89.750835, 0), App.Vector(114.162997, -88.923891, 0), App.Vector(115.032496, -88.037213, 0), App.Vector(115.834897, -87.091953, 0), App.Vector(116.567499, -86.082145, 0), App.Vector(117.242057, -85.02419, 0), App.Vector(117.843813, -83.918524, 0), App.Vector(118.368116, -82.780285, 0), App.Vector(118.812923, -81.612276, 0), App.Vector(119.172004, -80.412813, 0), App.Vector(119.453389, -79.184174, 0), App.Vector(119.647273, -77.924713, 0), App.Vector(119.782896, -76.63695, 0), App.Vector(119.793118, -75.765957, 0), App.Vector(119.798272, -75.326897, 0)], [4, 1, 1, 1, 1, 1, 1, 1, 1, 1, 1, 1, 1, 1, 1, 1, 1, 1, 1, 1, 1, 1, 1, 1, 4], [0, 1.047197238, 2.076906641, 3.100256066, 4.114471768, 5.12198147, 6.126382909, 7.136867548, 8.15857795, 9.17633901, 10.174870724, 11.156907918, 12.133735059, 13.104061851, 14.077631395, 15.04955518, 16.038496417, 17.029181396, 18.010275684, 18.986308667, 19.968651475, 20.955262928, 21.950658345, 22.966943676, 24], False, 3, [1, 1, 1, 1, 1, 1, 1, 1, 1, 1, 1, 1, 1, 1, 1, 1, 1, 1, 1, 1, 1, 1, 1, 1, 1, 1, 1], False), False)  # 22
sketch4.addGeometry(Part.BSplineCurve([App.Vector(80.567502, -75.534229, 0), App.Vector(80.583893, -76.184315, 0), App.Vector(80.61614, -77.463234, 0), App.Vector(80.898451, -79.337396, 0), App.Vector(81.333305, -81.138531, 0), App.Vector(81.974329, -82.856784, 0), App.Vector(82.775979, -84.506925, 0), App.Vector(83.766325, -86.074315, 0), App.Vector(84.939656, -87.559378, 0), App.Vector(86.272473, -88.951745, 0), App.Vector(87.729479, -90.22262, 0), App.Vector(89.276614, -91.33815, 0), App.Vector(90.897304, -92.281996, 0), App.Vector(92.595773, -93.050918, 0), App.Vector(94.362956, -93.660215, 0), App.Vector(96.210239, -94.077797, 0), App.Vector(98.125316, -94.352624, 0), App.Vector(99.43071, -94.379017, 0), App.Vector(100.092743, -94.392402, 0)], [4, 1, 1, 1, 1, 1, 1, 1, 1, 1, 1, 1, 1, 1, 1, 1, 4], [0, 1.032063989, 2.030389145, 3.003944642, 3.970395727, 4.937377036, 5.913328081, 6.909231446, 7.93887556, 8.970685674, 9.976071282, 10.964166581, 11.944589148, 12.933237628, 13.927779006, 14.949070134, 16], False, 3, [1, 1, 1, 1, 1, 1, 1, 1, 1, 1, 1, 1, 1, 1, 1, 1, 1, 1, 1], False), False)  # 23
sketch4.addGeometry(Part.BSplineCurve([App.Vector(100.092743, -56.315479, 0), App.Vector(99.665697, -56.320685, 0), App.Vector(98.815689, -56.331046, 0), App.Vector(97.552031, -56.467534, 0), App.Vector(96.304992, -56.662061, 0), App.Vector(95.074314, -56.939538, 0), App.Vector(93.865148, -57.31759, 0), App.Vector(92.666221, -57.752687, 0), App.Vector(91.488468, -58.282673, 0), App.Vector(90.335775, -58.881465, 0), App.Vector(89.218296, -59.544237, 0), App.Vector(88.163847, -60.276731, 0), App.Vector(87.169698, -61.061769, 0), App.Vector(86.238285, -61.901184, 0), App.Vector(85.372341, -62.799251, 0), App.Vector(84.554824, -63.742353, 0), App.Vector(83.818501, -64.757449, 0), App.Vector(83.143686, -65.817012, 0), App.Vector(82.539814, -66.91966, 0), App.Vector(82.002831, -68.053787, 0), App.Vector(81.563579, -69.228643, 0), App.Vector(81.205349, -70.431482, 0), App.Vector(80.908351, -71.6604, 0), App.Vector(80.720201, -72.924718, 0), App.Vector(80.582213, -74.218084, 0), App.Vector(80.572444, -75.092136, 0), App.Vector(80.567502, -75.534229, 0)], [4, 1, 1, 1, 1, 1, 1, 1, 1, 1, 1, 1, 1, 1, 1, 1, 1, 1, 1, 1, 1, 1, 1, 1, 4], [0, 1.008559885, 2.007477868, 2.99961109, 3.989939068, 4.984837346, 5.991145699, 7.001802488, 8.033829008, 9.059044045, 10.069351652, 11.065060232, 12.050310815, 13.029377138, 14.011219647, 14.996725999, 15.989392538, 16.977580475, 17.965360261, 18.951710183, 19.937753436, 20.929683414, 21.935841486, 22.955955122, 24], False, 3, [1, 1, 1, 1, 1, 1, 1, 1, 1, 1, 1, 1, 1, 1, 1, 1, 1, 1, 1, 1, 1, 1, 1, 1, 1, 1, 1], False), False)  # 24
add_polygon(sketch4, [(137.105964, -52.85394), (133.067502, -52.85394), (133.067502, -97.85394), (154.413656, -97.85394), (154.413656, -93.238556), (137.105964, -93.238556)])  # lines 25-30
sketch4.addConstraint([
    Sketcher.Constraint("Block", 1),
    Sketcher.Constraint("Block", 2),
    Sketcher.Constraint("Block", 3),
    Sketcher.Constraint("Block", 4),
    Sketcher.Constraint("Block", 5),
    Sketcher.Constraint("Block", 6),
    Sketcher.Constraint("Block", 7),
    Sketcher.Constraint("Block", 9),
    Sketcher.Constraint("Block", 10),
    Sketcher.Constraint("Block", 11),
    Sketcher.Constraint("Block", 12),
    Sketcher.Constraint("Block", 13),
    Sketcher.Constraint("Block", 14),
    Sketcher.Constraint("Block", 15),
    Sketcher.Constraint("Block", 16),
    Sketcher.Constraint("Block", 17),
    Sketcher.Constraint("Block", 18),
    Sketcher.Constraint("Block", 19),
    Sketcher.Constraint("Block", 20),
    Sketcher.Constraint("Block", 21),
    Sketcher.Constraint("Block", 22),
    Sketcher.Constraint("Block", 23),
    Sketcher.Constraint("Block", 24),
    Sketcher.Constraint("Coincident", 0, 2, 1, 2),
    Sketcher.Constraint("Coincident", 7, 1, 8, 1),
    Sketcher.Constraint("Coincident", 8, 2, 9, 2),
    Sketcher.Constraint("Coincident", 16, 1, 0, 1),
    Sketcher.Constraint("Horizontal", 25),
    Sketcher.Constraint("Vertical", 26),
    Sketcher.Constraint("Horizontal", 27),
    Sketcher.Constraint("Vertical", 28),
    Sketcher.Constraint("Horizontal", 29),
    Sketcher.Constraint("Vertical", 30),
    Sketcher.Constraint("DistanceY", 26, 2, 26, 1, 45.0),
    Sketcher.Constraint("DistanceX", 0, 2, 25, 2, 90.0),
    Sketcher.Constraint("DistanceX", 25, 2, 25, 1, 4.038462),
    Sketcher.Constraint("DistanceX", 27, 1, 27, 2, 21.346154),
    Sketcher.Constraint("DistanceY", 28, 1, 28, 2, 4.615385),
    Sketcher.Constraint("DistanceY", 25, 2, -1, 1, 52.85394),
])
pocket3 = body.newObject("PartDesign::Pocket", "Pocket002")
pocket3.Profile = sketch4
pocket3.Length = 1.5

doc.recompute()
